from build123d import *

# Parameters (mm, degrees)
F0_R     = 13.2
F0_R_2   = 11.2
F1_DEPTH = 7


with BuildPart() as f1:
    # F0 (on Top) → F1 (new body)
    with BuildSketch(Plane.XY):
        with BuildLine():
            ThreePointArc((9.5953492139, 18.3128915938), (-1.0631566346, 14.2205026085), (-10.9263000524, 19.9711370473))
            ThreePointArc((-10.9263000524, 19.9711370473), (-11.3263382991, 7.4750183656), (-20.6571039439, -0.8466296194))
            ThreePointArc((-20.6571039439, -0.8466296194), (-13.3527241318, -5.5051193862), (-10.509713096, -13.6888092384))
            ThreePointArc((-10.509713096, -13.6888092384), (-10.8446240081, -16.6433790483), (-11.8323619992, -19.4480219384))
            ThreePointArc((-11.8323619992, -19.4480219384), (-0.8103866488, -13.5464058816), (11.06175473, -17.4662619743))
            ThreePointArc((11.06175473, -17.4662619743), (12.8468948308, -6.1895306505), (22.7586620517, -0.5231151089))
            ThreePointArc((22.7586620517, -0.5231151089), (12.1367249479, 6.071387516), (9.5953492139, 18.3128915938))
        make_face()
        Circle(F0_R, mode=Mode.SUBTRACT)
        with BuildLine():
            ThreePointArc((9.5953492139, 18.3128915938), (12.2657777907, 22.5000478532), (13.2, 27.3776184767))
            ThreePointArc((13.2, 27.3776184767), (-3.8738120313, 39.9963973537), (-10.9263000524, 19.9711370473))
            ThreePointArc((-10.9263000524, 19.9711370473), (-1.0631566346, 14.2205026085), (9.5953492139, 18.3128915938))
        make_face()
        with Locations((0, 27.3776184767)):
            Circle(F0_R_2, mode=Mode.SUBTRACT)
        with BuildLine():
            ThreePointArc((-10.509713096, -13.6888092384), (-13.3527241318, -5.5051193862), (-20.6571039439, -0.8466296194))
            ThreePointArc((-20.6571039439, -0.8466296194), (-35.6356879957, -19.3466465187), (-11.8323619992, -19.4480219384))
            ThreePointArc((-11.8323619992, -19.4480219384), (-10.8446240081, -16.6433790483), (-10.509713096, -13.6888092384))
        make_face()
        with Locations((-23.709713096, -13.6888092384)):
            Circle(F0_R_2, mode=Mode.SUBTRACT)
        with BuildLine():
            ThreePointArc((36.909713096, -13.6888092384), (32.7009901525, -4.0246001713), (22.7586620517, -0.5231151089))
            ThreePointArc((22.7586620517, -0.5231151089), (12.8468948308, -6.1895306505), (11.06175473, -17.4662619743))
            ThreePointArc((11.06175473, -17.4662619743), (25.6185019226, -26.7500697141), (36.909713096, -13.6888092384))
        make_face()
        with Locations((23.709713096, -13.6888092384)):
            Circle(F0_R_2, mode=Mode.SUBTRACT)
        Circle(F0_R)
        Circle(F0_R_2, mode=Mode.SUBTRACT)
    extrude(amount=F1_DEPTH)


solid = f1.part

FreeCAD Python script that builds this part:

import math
import FreeCAD as App
import Part
import Sketcher

V = App.Vector
Q = App.Units.Quantity

doc = App.newDocument("Part")
params = doc.addObject("Spreadsheet::Sheet", "Params")
for row, (alias, value) in enumerate([
    ("sketch1_diameter", "22.4 mm"),
    ("sketch1_radius", "13.2 mm"),
    ("pad1_length", "7 mm"),
], start=1):
    params.set(f"A{row}", alias)
    params.set(f"B{row}", "=" + value)
    params.setAlias(f"B{row}", alias)

body = doc.addObject("PartDesign::Body", "Body")

# Sketch on XY plane
sketch1 = doc.addObject("Sketcher::SketchObject", "Sketch")
body.addObject(sketch1)
sketch1.AttachmentSupport = (doc.XY_Plane, [""])
sketch1.MapMode = "FlatFace"
sketch1.addGeometry([
    Part.ArcOfCircle(Part.Circle(V(25, 15, 0), V(0, 0, 1), 16), math.radians(169), math.radians(261)),  # 0
    Part.ArcOfCircle(Part.Circle(V(0, 27, 0), V(0, 0, 1), 13), math.radians(-43), math.radians(0)),  # 1
    Part.ArcOfCircle(Part.Circle(V(0, 27, 0), V(0, 0, 1), 13), math.radians(0), math.radians(214)),  # 2
    Part.ArcOfCircle(Part.Circle(V(-26, 14, 0), V(0, 0, 1), 16), math.radians(-71), math.radians(21)),  # 3
    Part.ArcOfCircle(Part.Circle(V(-24, -14, 0), V(0, 0, 1), 13), math.radians(77), math.radians(334)),  # 4
    Part.ArcOfCircle(Part.Circle(V(1, -29, 0), V(0, 0, 1), 16), math.radians(49), math.radians(141)),  # 5
    Part.ArcOfCircle(Part.Circle(V(24, -14, 0), V(0, 0, 1), 13), math.radians(-163), math.radians(0)),  # 6
    Part.ArcOfCircle(Part.Circle(V(24, -14, 0), V(0, 0, 1), 13), math.radians(0), math.radians(94)),  # 7
    Part.Circle(V(-24, -14, 0), V(0, 0, 1), 11),  # 8
    Part.Circle(V(24, -14, 0), V(0, 0, 1), 11),  # 9
    Part.Circle(V(0, 0, 0), V(0, 0, 1), 11),  # 10
    Part.Circle(V(0, 27, 0), V(0, 0, 1), 11),  # 11
], False)
sketch1.addConstraint([
    Sketcher.Constraint("Coincident", 0, 1, 1, 1),
    Sketcher.Constraint("Tangent", 1, 2, 2, 1),
    Sketcher.Constraint("Coincident", 2, 2, 3, 2),
    Sketcher.Constraint("Coincident", 3, 1, 4, 1),
    Sketcher.Constraint("Coincident", 4, 2, 5, 2),
    Sketcher.Constraint("Coincident", 5, 1, 6, 1),
    Sketcher.Constraint("Tangent", 6, 2, 7, 1),
    Sketcher.Constraint("Coincident", 7, 2, 0, 2),
    Sketcher.Constraint("Coincident", 10, 3, -1, 1),
    Sketcher.Constraint("Coincident", 8, 3, 4, 3),
    Sketcher.Constraint("Coincident", 9, 3, 6, 3),
    Sketcher.Constraint("Coincident", 11, 3, 1, 3),
    Sketcher.Constraint("Equal", 1, 2),
    Sketcher.Constraint("Equal", 0, 3),
    Sketcher.Constraint("Equal", 2, 4),
    Sketcher.Constraint("Equal", 3, 5),
    Sketcher.Constraint("Equal", 4, 6),
    Sketcher.Constraint("Equal", 6, 7),
    Sketcher.Constraint("Equal", 8, 9),
    Sketcher.Constraint("Equal", 9, 10),
    Sketcher.Constraint("Equal", 10, 11),
    Sketcher.Constraint("Symmetric", 4, 3, 6, 3, -2),
    Sketcher.Constraint("PointOnObject", 1, 3, -2),
    Sketcher.Constraint("Horizontal", 11, 3, 1, 2),
    Sketcher.Constraint("Horizontal", 9, 3, 6, 2),
    Sketcher.Constraint("Diameter", 8, Q("22.4 mm")),
    Sketcher.Constraint("Radius", 1, Q("13.2 mm")),
    Sketcher.Constraint("Radius", 0, Q("15.856142 mm")),
    Sketcher.Constraint("DistanceX", 3, 3, 4, 3, Q("1.981001 mm")),
    Sketcher.Constraint("DistanceX", 2, 2, -1, 1, Q("10.9263 mm")),
    Sketcher.Constraint("DistanceX", 4, 2, 5, 3, Q("12.389401 mm")),
    Sketcher.Constraint("DistanceY", -1, 1, 1, 3, Q("27.377618 mm")),
    Sketcher.Constraint("DistanceY", 4, 3, -1, 1, Q("13.688809 mm")),
    Sketcher.Constraint("DistanceX", -1, 1, 5, 3, Q("0.557039 mm")),
    Sketcher.Constraint("DistanceX", -1, 1, 0, 1, Q("9.595349 mm")),
    Sketcher.Constraint("DistanceY", 3, 1, -1, 1, Q("0.84663 mm")),
    Sketcher.Constraint("DistanceY", 0, 3, 1, 3, Q("12.223471 mm")),
])
sketch1.setExpression("Constraints[25]", "Params.sketch1_diameter")
sketch1.setExpression("Constraints[26]", "Params.sketch1_radius")
pad1 = doc.addObject("PartDesign::Pad", "Pad")
body.addObject(pad1)
pad1.Profile = sketch1
pad1.setExpression("Length", "Params.pad1_length")

doc.recompute()
